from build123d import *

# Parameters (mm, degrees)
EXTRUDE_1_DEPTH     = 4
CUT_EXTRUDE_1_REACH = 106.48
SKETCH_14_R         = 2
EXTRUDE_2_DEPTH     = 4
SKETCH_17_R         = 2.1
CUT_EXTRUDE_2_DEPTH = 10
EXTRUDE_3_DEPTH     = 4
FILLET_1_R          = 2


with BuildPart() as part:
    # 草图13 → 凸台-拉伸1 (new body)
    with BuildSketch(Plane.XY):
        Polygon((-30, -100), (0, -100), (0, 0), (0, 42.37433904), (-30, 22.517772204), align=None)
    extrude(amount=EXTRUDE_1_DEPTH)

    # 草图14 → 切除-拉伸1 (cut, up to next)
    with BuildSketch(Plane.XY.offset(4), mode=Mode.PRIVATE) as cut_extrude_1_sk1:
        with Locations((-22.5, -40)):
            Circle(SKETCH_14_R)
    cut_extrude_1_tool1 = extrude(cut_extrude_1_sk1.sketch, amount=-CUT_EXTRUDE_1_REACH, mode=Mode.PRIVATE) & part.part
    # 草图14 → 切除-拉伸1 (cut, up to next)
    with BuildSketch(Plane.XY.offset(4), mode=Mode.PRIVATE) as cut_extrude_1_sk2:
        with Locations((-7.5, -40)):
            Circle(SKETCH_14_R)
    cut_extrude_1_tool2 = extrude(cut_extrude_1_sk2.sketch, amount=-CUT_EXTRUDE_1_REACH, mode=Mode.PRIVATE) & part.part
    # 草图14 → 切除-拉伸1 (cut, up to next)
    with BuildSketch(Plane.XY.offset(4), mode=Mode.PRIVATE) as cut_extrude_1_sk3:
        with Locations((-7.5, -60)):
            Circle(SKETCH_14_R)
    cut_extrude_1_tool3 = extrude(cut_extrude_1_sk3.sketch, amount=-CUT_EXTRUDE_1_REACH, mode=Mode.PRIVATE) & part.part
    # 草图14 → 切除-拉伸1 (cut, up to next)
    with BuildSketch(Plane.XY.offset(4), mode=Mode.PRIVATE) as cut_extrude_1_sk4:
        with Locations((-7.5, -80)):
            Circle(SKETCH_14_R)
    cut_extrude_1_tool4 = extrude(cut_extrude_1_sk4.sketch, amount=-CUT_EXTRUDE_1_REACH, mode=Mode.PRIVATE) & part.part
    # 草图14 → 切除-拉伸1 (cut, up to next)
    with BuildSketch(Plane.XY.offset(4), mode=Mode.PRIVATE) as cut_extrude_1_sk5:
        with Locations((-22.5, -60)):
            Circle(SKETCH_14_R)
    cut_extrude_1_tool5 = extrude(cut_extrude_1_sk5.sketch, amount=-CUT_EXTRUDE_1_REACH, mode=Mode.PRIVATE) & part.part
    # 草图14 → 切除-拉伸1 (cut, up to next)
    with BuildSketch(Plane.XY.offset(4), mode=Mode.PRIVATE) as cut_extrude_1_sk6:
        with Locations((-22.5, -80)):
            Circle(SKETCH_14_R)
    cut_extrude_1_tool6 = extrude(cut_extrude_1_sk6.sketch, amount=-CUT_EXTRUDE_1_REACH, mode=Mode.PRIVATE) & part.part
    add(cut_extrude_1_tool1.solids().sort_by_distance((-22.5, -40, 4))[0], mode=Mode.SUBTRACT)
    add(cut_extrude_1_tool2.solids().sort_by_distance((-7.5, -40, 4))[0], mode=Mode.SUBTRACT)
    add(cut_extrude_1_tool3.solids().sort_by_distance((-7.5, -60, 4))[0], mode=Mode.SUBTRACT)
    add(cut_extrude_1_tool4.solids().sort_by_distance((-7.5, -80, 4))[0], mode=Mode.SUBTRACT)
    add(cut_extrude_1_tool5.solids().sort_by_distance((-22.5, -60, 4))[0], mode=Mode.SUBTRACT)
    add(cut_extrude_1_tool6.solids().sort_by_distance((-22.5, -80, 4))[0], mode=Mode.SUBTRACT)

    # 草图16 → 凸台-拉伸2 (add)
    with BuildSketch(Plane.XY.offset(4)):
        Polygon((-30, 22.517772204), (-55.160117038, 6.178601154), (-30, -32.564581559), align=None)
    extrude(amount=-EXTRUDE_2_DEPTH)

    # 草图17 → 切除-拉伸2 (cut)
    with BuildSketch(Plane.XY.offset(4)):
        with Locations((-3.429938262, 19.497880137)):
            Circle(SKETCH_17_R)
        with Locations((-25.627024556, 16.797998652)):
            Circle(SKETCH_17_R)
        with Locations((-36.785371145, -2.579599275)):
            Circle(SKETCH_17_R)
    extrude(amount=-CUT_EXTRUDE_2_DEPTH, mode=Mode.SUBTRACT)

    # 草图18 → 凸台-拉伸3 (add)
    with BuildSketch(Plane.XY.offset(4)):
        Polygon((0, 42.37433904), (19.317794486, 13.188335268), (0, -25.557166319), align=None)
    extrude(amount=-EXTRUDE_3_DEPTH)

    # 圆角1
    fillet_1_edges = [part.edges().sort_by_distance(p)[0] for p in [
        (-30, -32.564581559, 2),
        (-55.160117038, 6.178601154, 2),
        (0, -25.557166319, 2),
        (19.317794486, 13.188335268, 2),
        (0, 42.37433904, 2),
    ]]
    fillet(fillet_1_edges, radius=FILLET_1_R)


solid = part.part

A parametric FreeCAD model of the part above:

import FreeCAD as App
import Part
import Sketcher

V = App.Vector
Q = App.Units.Quantity


def edges_at(feature, points):
    """Names of the edges that pass closest to the given points."""
    edges = feature.Shape.Edges
    near = lambda p: min(range(len(edges)), key=lambda i: edges[i].distToShape(Part.Vertex(*p))[0])
    return sorted({f"Edge{near(p) + 1}" for p in points})

doc = App.newDocument("Part")
body = doc.addObject("PartDesign::Body", "Body")

# Sketch on XY plane
sketch1 = body.newObject("Sketcher::SketchObject", "Sketch")
sketch1.AttachmentSupport = (doc.getObject("XY_Plane"), [""])
sketch1.MapMode = "FlatFace"
sketch1.addGeometry([
    Part.LineSegment(V(-30, -100, 0), V(0, -100, 0)),
    Part.LineSegment(V(0, -100, 0), V(0, 42.374339, 0)),
    Part.LineSegment(V(0, 42.374339, 0), V(-30, 22.517772, 0)),
    Part.LineSegment(V(-30, 22.517772, 0), V(-30, -100, 0)),
], False)
sketch1.addConstraint([
    Sketcher.Constraint("Coincident", 0, 2, 1, 1),
    Sketcher.Constraint("Coincident", 1, 2, 2, 1),
    Sketcher.Constraint("Coincident", 2, 2, 3, 1),
    Sketcher.Constraint("Coincident", 3, 2, 0, 1),
    Sketcher.Constraint("Horizontal", 0),
    Sketcher.Constraint("Vertical", 1),
    Sketcher.Constraint("Vertical", 3),
    Sketcher.Constraint("PointOnObject", 0, 2, -2),
    Sketcher.Constraint("DistanceX", 0, 1, 0, 2, Q("30 mm")),
    Sketcher.Constraint("DistanceY", 0, 2, -1, 1, Q("100 mm")),
    Sketcher.Constraint("Angle", 2, Q("-146.5 deg")),
    Sketcher.Constraint("DistanceY", 1, 1, 1, 2, Q("142.374339 mm")),
])
pad1 = body.newObject("PartDesign::Pad", "Pad")
pad1.Profile = sketch1
pad1.Length = 4

# Sketch on XY plane
sketch2 = body.newObject("Sketcher::SketchObject", "Sketch001")
sketch2.AttachmentSupport = (doc.getObject("XY_Plane"), [""])
sketch2.MapMode = "FlatFace"
sketch2.AttachmentOffset = App.Placement(V(0, 0, 4), App.Rotation())
sketch2.addGeometry(Part.Circle(V(-22.5, -40, 0), V(0, 0, 1), 2), False)
sketch2.addConstraint([
    Sketcher.Constraint("Diameter", 0, Q("4 mm")),
    Sketcher.Constraint("DistanceY", 0, 3, -1, 1, Q("40 mm")),
    Sketcher.Constraint("DistanceX", 0, 3, -1, 1, Q("22.5 mm")),
])
pocket1 = body.newObject("PartDesign::Pocket", "Pocket")
pocket1.Profile = sketch2
pocket1.Type = "UpToFirst"

# Sketch on XY plane
sketch3 = body.newObject("Sketcher::SketchObject", "Sketch002")
sketch3.AttachmentSupport = (doc.getObject("XY_Plane"), [""])
sketch3.MapMode = "FlatFace"
sketch3.AttachmentOffset = App.Placement(V(0, 0, 4), App.Rotation())
sketch3.addGeometry(Part.Circle(V(-7.5, -40, 0), V(0, 0, 1), 2), False)
sketch3.addConstraint([
    Sketcher.Constraint("Diameter", 0, Q("4 mm")),
    Sketcher.Constraint("DistanceY", 0, 3, -1, 1, Q("40 mm")),
    Sketcher.Constraint("DistanceX", 0, 3, -1, 1, Q("7.5 mm")),
])
pocket2 = body.newObject("PartDesign::Pocket", "Pocket001")
pocket2.Profile = sketch3
pocket2.Type = "UpToFirst"

# Sketch on XY plane
sketch4 = body.newObject("Sketcher::SketchObject", "Sketch003")
sketch4.AttachmentSupport = (doc.getObject("XY_Plane"), [""])
sketch4.MapMode = "FlatFace"
sketch4.AttachmentOffset = App.Placement(V(0, 0, 4), App.Rotation())
sketch4.addGeometry(Part.Circle(V(-7.5, -60, 0), V(0, 0, 1), 2), False)
sketch4.addConstraint([
    Sketcher.Constraint("Diameter", 0, Q("4 mm")),
    Sketcher.Constraint("DistanceY", 0, 3, -1, 1, Q("60 mm")),
    Sketcher.Constraint("DistanceX", 0, 3, -1, 1, Q("7.5 mm")),
])
pocket3 = body.newObject("PartDesign::Pocket", "Pocket002")
pocket3.Profile = sketch4
pocket3.Type = "UpToFirst"

# Sketch on XY plane
sketch5 = body.newObject("Sketcher::SketchObject", "Sketch004")
sketch5.AttachmentSupport = (doc.getObject("XY_Plane"), [""])
sketch5.MapMode = "FlatFace"
sketch5.AttachmentOffset = App.Placement(V(0, 0, 4), App.Rotation())
sketch5.addGeometry(Part.Circle(V(-7.5, -80, 0), V(0, 0, 1), 2), False)
sketch5.addConstraint([
    Sketcher.Constraint("Diameter", 0, Q("4 mm")),
    Sketcher.Constraint("DistanceY", 0, 3, -1, 1, Q("80 mm")),
    Sketcher.Constraint("DistanceX", 0, 3, -1, 1, Q("7.5 mm")),
])
pocket4 = body.newObject("PartDesign::Pocket", "Pocket003")
pocket4.Profile = sketch5
pocket4.Type = "UpToFirst"

# Sketch on XY plane
sketch6 = body.newObject("Sketcher::SketchObject", "Sketch005")
sketch6.AttachmentSupport = (doc.getObject("XY_Plane"), [""])
sketch6.MapMode = "FlatFace"
sketch6.AttachmentOffset = App.Placement(V(0, 0, 4), App.Rotation())
sketch6.addGeometry(Part.Circle(V(-22.5, -60, 0), V(0, 0, 1), 2), False)
sketch6.addConstraint([
    Sketcher.Constraint("Diameter", 0, Q("4 mm")),
    Sketcher.Constraint("DistanceY", 0, 3, -1, 1, Q("60 mm")),
    Sketcher.Constraint("DistanceX", 0, 3, -1, 1, Q("22.5 mm")),
])
pocket5 = body.newObject("PartDesign::Pocket", "Pocket004")
pocket5.Profile = sketch6
pocket5.Type = "UpToFirst"

# Sketch on XY plane
sketch7 = body.newObject("Sketcher::SketchObject", "Sketch006")
sketch7.AttachmentSupport = (doc.getObject("XY_Plane"), [""])
sketch7.MapMode = "FlatFace"
sketch7.AttachmentOffset = App.Placement(V(0, 0, 4), App.Rotation())
sketch7.addGeometry(Part.Circle(V(-22.5, -80, 0), V(0, 0, 1), 2), False)
sketch7.addConstraint([
    Sketcher.Constraint("Diameter", 0, Q("4 mm")),
    Sketcher.Constraint("DistanceY", 0, 3, -1, 1, Q("80 mm")),
    Sketcher.Constraint("DistanceX", 0, 3, -1, 1, Q("22.5 mm")),
])
pocket6 = body.newObject("PartDesign::Pocket", "Pocket005")
pocket6.Profile = sketch7
pocket6.Type = "UpToFirst"

# Sketch on XY plane
sketch8 = body.newObject("Sketcher::SketchObject", "Sketch007")
sketch8.AttachmentSupport = (doc.getObject("XY_Plane"), [""])
sketch8.MapMode = "FlatFace"
sketch8.AttachmentOffset = App.Placement(V(0, 0, 4), App.Rotation())
sketch8.addGeometry([
    Part.LineSegment(V(-30, 22.517772, 0), V(-55.160117, 6.178601, 0)),
    Part.LineSegment(V(-55.160117, 6.178601, 0), V(-30, -32.564582, 0)),
    Part.LineSegment(V(-30, -32.564582, 0), V(-30, 22.517772, 0)),
], False)
sketch8.addConstraint([
    Sketcher.Constraint("Coincident", 0, 2, 1, 1),
    Sketcher.Constraint("Coincident", 1, 2, 2, 1),
    Sketcher.Constraint("Coincident", 2, 2, 0, 1),
    Sketcher.Constraint("Vertical", 2),
    Sketcher.Constraint("Perpendicular", 0, 1),
    Sketcher.Constraint("Angle", 0, Q("-147 deg")),
    Sketcher.Constraint("Distance", 0, Q("30 mm")),
    Sketcher.Constraint("DistanceX", 1, 2, -1, 1, Q("30 mm")),
    Sketcher.Constraint("DistanceY", -1, 1, 0, 2, Q("6.178601 mm")),
])
pad2 = body.newObject("PartDesign::Pad", "Pad001")
pad2.Profile = sketch8
pad2.Length = 4
pad2.Reversed = True

# Sketch on XY plane
sketch9 = body.newObject("Sketcher::SketchObject", "Sketch008")
sketch9.AttachmentSupport = (doc.getObject("XY_Plane"), [""])
sketch9.MapMode = "FlatFace"
sketch9.AttachmentOffset = App.Placement(V(0, 0, 4), App.Rotation())
sketch9.addGeometry([
    Part.Circle(V(-3.429938, 19.49788, 0), V(0, 0, 1), 2.1),
    Part.Circle(V(-25.627025, 16.797999, 0), V(0, 0, 1), 2.1),
    Part.Circle(V(-36.785371, -2.579599, 0), V(0, 0, 1), 2.1),
], False)
sketch9.addConstraint([
    Sketcher.Constraint("Equal", 0, 1),
    Sketcher.Constraint("Equal", 1, 2),
    Sketcher.Constraint("Diameter", 0, Q("4.2 mm")),
    Sketcher.Constraint("DistanceY", -1, 1, 1, 3, Q("16.797999 mm")),
    Sketcher.Constraint("DistanceY", 2, 3, -1, 1, Q("2.579599 mm")),
    Sketcher.Constraint("DistanceX", 0, 3, -1, 1, Q("3.429938 mm")),
    Sketcher.Constraint("DistanceY", -1, 1, 0, 3, Q("19.49788 mm")),
    Sketcher.Constraint("DistanceX", 2, 3, -1, 1, Q("36.785371 mm")),
    Sketcher.Constraint("DistanceX", 1, 3, -1, 1, Q("25.627025 mm")),
])
pocket7 = body.newObject("PartDesign::Pocket", "Pocket006")
pocket7.Profile = sketch9
pocket7.Length = 10

# Sketch on XY plane
sketch10 = body.newObject("Sketcher::SketchObject", "Sketch009")
sketch10.AttachmentSupport = (doc.getObject("XY_Plane"), [""])
sketch10.MapMode = "FlatFace"
sketch10.AttachmentOffset = App.Placement(V(0, 0, 4), App.Rotation())
sketch10.addGeometry([
    Part.LineSegment(V(19.317794, 13.188335, 0), V(0, 42.374339, 0)),
    Part.LineSegment(V(0, 42.374339, 0), V(0, -25.557166, 0)),
    Part.LineSegment(V(0, -25.557166, 0), V(19.317794, 13.188335, 0)),
], False)
sketch10.addConstraint([
    Sketcher.Constraint("Coincident", 0, 2, 1, 1),
    Sketcher.Constraint("Coincident", 1, 2, 2, 1),
    Sketcher.Constraint("Coincident", 2, 2, 0, 1),
    Sketcher.Constraint("Vertical", 1),
    Sketcher.Constraint("PointOnObject", 0, 2, -2),
    Sketcher.Constraint("Distance", 0, Q("35 mm")),
    Sketcher.Constraint("Angle", 0, Q("123.5 deg")),
    Sketcher.Constraint("Angle", 2, Q("63.5 deg")),
    Sketcher.Constraint("DistanceY", -1, 1, 0, 2, Q("42.374339 mm")),
])
pad3 = body.newObject("PartDesign::Pad", "Pad002")
pad3.Profile = sketch10
pad3.Length = 4
pad3.Reversed = True
doc.recompute()

fillet = body.newObject("PartDesign::Fillet", "Fillet")
fillet.Base = (pad3, edges_at(pad3, [
    (-30, -32.565, 2),
    (-55.16, 6.179, 2),
    (0, -25.557, 2),
    (19.318, 13.188, 2),
    (0, 42.374, 2),
]))
fillet.Radius = 2

doc.recompute()
